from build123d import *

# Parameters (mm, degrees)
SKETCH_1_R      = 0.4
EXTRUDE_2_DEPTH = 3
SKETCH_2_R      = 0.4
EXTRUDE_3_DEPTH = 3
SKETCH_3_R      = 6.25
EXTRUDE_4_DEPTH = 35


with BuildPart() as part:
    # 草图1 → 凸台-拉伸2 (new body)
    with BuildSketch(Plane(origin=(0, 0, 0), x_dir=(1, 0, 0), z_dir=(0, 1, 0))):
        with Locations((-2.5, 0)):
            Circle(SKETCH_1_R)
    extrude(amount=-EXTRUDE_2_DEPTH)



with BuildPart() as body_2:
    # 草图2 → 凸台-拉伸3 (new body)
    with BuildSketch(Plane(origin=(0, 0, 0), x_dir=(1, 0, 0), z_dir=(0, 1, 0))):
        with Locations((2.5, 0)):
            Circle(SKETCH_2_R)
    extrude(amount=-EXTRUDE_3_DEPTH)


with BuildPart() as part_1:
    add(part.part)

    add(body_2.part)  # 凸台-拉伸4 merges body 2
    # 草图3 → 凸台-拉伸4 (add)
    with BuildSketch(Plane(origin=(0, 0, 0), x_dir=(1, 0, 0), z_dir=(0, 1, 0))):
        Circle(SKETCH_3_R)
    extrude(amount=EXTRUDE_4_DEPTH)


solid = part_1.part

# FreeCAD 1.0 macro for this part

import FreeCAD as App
import Part
import Sketcher

V = App.Vector

doc = App.newDocument("Part")
body = doc.addObject("PartDesign::Body", "Body")

# Sketch on XZ plane
sketch1 = doc.addObject("Sketcher::SketchObject", "Sketch")
body.addObject(sketch1)
sketch1.AttachmentSupport = (doc.XZ_Plane, [""])
sketch1.MapMode = "FlatFace"
sketch1.addGeometry(Part.Circle(V(-2.5, 0, 0), V(0, 0, 1), 0.4), False)
sketch1.addConstraint(Sketcher.Constraint("PointOnObject", 0, 3, -1))
sketch1.addConstraint(Sketcher.Constraint("Diameter", 0, 0.8))
sketch1.addConstraint(Sketcher.Constraint("DistanceX", 0, 3, -1, 1, 2.5))
pad1 = doc.addObject("PartDesign::Pad", "Pad")
body.addObject(pad1)
pad1.Profile = sketch1
pad1.Length = 3
body2 = doc.addObject("PartDesign::Body", "Body001")

# Sketch on XZ plane
sketch2 = doc.addObject("Sketcher::SketchObject", "Sketch001")
body2.addObject(sketch2)
sketch2.AttachmentSupport = (doc.getObject("XZ_Plane001"), [""])
sketch2.MapMode = "FlatFace"
sketch2.addGeometry(Part.Circle(V(2.5, 0, 0), V(0, 0, 1), 0.4), False)
sketch2.addConstraint(Sketcher.Constraint("PointOnObject", 0, 3, -1))
sketch2.addConstraint(Sketcher.Constraint("Diameter", 0, 0.8))
sketch2.addConstraint(Sketcher.Constraint("DistanceX", -1, 1, 0, 3, 2.5))
pad2 = doc.addObject("PartDesign::Pad", "Pad001")
body2.addObject(pad2)
pad2.Profile = sketch2
pad2.Length = 3
body.AllowCompound = True
doc.recompute()

boolean = doc.addObject("PartDesign::Boolean", "Boolean")
body.addObject(boolean)
boolean.Type = "Fuse"
boolean.addObjects([body2])

# Sketch on XZ plane
sketch3 = doc.addObject("Sketcher::SketchObject", "Sketch002")
body.addObject(sketch3)
sketch3.AttachmentSupport = (doc.XZ_Plane, [""])
sketch3.MapMode = "FlatFace"
sketch3.addGeometry(Part.Circle(V(0, 0, 0), V(0, 0, 1), 6.25), False)
sketch3.addConstraint(Sketcher.Constraint("Coincident", 0, 3, -1, 1))
sketch3.addConstraint(Sketcher.Constraint("Diameter", 0, 12.5))
pad3 = doc.addObject("PartDesign::Pad", "Pad002")
body.addObject(pad3)
pad3.Profile = sketch3
pad3.Length = 35
pad3.Reversed = True

doc.recompute()
